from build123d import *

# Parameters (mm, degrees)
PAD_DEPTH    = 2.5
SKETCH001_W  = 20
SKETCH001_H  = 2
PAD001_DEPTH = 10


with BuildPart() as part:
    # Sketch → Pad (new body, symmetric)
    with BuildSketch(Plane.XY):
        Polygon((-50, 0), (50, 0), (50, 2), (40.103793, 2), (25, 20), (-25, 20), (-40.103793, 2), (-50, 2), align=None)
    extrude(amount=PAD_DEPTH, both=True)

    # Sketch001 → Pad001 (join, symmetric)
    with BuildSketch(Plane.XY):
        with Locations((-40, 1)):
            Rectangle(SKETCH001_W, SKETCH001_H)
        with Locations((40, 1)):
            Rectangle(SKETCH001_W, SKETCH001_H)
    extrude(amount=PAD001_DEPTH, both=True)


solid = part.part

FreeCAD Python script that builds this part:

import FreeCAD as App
import Part
import Sketcher
Q = App.Units.Quantity


def add_polygon(sketch, points):
    """Adds a closed chain of lines whose ends are joined by coincident constraints."""
    first, n = sketch.GeometryCount, len(points)
    for a, b in zip(points, points[1:] + points[:1]):
        sketch.addGeometry(Part.LineSegment(App.Vector(*a, 0), App.Vector(*b, 0)), False)
    for i in range(n):
        sketch.addConstraint(Sketcher.Constraint("Coincident", first + i, 2, first + (i + 1) % n, 1))

doc = App.newDocument("Part")
body = doc.addObject("PartDesign::Body", "Body")

# Sketch on XY plane
sketch1 = body.newObject("Sketcher::SketchObject", "Sketch")
sketch1.AttachmentSupport = (doc.getObject("XY_Plane"), [""])
sketch1.MapMode = "FlatFace"
add_polygon(sketch1, [(-50, 0), (50, 0), (50, 2), (40.103793, 2), (25, 20), (-25, 20), (-40.103793, 2), (-50, 2)])  # lines 0-7
sketch1.addConstraint([
    Sketcher.Constraint("Horizontal", 0),
    Sketcher.Constraint("Vertical", 1),
    Sketcher.Constraint("Horizontal", 2),
    Sketcher.Constraint("Horizontal", 4),
    Sketcher.Constraint("Horizontal", 6),
    Sketcher.Constraint("Vertical", 7),
    Sketcher.Constraint("Symmetric", 0, 2, 7, 2, -1, 1),
    Sketcher.Constraint("Symmetric", 2, 2, 5, 2, -2),
    Sketcher.Constraint("Equal", 3, 5),
    Sketcher.Constraint("DistanceX", 0, 1, 0, 2, 100.0),
    Sketcher.Constraint("DistanceX", 4, 2, 4, 1, 50.0),
    Sketcher.Constraint("DistanceY", 1, 1, 1, 2, 2.0),
    Sketcher.Constraint("Angle", 3, Q("129.999999 deg")),
    Sketcher.Constraint("DistanceY", -1, 1, 3, 2, 20.0),
])
pad1 = body.newObject("PartDesign::Pad", "Pad")
pad1.Profile = sketch1
pad1.Length = 5
pad1.Midplane = True

# Sketch on XY plane
sketch2 = body.newObject("Sketcher::SketchObject", "Sketch001")
sketch2.AttachmentSupport = (doc.getObject("XY_Plane"), [""])
sketch2.MapMode = "FlatFace"
add_polygon(sketch2, [(-50, 2), (-50, 0), (-30, 0), (-30, 2)])  # lines 0-3
add_polygon(sketch2, [(30, 2), (30, 0), (50, 0), (50, 2)])  # lines 4-7
sketch2.addConstraint([
    Sketcher.Constraint("Vertical", 0),
    Sketcher.Constraint("Horizontal", 1),
    Sketcher.Constraint("Vertical", 2),
    Sketcher.Constraint("Horizontal", 3),
    Sketcher.Constraint("Vertical", 4),
    Sketcher.Constraint("Horizontal", 5),
    Sketcher.Constraint("Vertical", 6),
    Sketcher.Constraint("Horizontal", 7),
    Sketcher.Constraint("Symmetric", 1, 2, 4, 2, -1, 1),
    Sketcher.Constraint("Symmetric", 0, 2, 5, 2, -2),
    Sketcher.Constraint("Horizontal", 3, 2, 6, 2),
    Sketcher.Constraint("DistanceX", 1, 1, 1, 2, 20.0),
    Sketcher.Constraint("DistanceY", 0, 2, 0, 1, 2.0),
    Sketcher.Constraint("DistanceX", 0, 2, -1, 1, 50.0),
])
pad2 = body.newObject("PartDesign::Pad", "Pad001")
pad2.Profile = sketch2
pad2.Length = 20
pad2.Midplane = True

doc.recompute()
